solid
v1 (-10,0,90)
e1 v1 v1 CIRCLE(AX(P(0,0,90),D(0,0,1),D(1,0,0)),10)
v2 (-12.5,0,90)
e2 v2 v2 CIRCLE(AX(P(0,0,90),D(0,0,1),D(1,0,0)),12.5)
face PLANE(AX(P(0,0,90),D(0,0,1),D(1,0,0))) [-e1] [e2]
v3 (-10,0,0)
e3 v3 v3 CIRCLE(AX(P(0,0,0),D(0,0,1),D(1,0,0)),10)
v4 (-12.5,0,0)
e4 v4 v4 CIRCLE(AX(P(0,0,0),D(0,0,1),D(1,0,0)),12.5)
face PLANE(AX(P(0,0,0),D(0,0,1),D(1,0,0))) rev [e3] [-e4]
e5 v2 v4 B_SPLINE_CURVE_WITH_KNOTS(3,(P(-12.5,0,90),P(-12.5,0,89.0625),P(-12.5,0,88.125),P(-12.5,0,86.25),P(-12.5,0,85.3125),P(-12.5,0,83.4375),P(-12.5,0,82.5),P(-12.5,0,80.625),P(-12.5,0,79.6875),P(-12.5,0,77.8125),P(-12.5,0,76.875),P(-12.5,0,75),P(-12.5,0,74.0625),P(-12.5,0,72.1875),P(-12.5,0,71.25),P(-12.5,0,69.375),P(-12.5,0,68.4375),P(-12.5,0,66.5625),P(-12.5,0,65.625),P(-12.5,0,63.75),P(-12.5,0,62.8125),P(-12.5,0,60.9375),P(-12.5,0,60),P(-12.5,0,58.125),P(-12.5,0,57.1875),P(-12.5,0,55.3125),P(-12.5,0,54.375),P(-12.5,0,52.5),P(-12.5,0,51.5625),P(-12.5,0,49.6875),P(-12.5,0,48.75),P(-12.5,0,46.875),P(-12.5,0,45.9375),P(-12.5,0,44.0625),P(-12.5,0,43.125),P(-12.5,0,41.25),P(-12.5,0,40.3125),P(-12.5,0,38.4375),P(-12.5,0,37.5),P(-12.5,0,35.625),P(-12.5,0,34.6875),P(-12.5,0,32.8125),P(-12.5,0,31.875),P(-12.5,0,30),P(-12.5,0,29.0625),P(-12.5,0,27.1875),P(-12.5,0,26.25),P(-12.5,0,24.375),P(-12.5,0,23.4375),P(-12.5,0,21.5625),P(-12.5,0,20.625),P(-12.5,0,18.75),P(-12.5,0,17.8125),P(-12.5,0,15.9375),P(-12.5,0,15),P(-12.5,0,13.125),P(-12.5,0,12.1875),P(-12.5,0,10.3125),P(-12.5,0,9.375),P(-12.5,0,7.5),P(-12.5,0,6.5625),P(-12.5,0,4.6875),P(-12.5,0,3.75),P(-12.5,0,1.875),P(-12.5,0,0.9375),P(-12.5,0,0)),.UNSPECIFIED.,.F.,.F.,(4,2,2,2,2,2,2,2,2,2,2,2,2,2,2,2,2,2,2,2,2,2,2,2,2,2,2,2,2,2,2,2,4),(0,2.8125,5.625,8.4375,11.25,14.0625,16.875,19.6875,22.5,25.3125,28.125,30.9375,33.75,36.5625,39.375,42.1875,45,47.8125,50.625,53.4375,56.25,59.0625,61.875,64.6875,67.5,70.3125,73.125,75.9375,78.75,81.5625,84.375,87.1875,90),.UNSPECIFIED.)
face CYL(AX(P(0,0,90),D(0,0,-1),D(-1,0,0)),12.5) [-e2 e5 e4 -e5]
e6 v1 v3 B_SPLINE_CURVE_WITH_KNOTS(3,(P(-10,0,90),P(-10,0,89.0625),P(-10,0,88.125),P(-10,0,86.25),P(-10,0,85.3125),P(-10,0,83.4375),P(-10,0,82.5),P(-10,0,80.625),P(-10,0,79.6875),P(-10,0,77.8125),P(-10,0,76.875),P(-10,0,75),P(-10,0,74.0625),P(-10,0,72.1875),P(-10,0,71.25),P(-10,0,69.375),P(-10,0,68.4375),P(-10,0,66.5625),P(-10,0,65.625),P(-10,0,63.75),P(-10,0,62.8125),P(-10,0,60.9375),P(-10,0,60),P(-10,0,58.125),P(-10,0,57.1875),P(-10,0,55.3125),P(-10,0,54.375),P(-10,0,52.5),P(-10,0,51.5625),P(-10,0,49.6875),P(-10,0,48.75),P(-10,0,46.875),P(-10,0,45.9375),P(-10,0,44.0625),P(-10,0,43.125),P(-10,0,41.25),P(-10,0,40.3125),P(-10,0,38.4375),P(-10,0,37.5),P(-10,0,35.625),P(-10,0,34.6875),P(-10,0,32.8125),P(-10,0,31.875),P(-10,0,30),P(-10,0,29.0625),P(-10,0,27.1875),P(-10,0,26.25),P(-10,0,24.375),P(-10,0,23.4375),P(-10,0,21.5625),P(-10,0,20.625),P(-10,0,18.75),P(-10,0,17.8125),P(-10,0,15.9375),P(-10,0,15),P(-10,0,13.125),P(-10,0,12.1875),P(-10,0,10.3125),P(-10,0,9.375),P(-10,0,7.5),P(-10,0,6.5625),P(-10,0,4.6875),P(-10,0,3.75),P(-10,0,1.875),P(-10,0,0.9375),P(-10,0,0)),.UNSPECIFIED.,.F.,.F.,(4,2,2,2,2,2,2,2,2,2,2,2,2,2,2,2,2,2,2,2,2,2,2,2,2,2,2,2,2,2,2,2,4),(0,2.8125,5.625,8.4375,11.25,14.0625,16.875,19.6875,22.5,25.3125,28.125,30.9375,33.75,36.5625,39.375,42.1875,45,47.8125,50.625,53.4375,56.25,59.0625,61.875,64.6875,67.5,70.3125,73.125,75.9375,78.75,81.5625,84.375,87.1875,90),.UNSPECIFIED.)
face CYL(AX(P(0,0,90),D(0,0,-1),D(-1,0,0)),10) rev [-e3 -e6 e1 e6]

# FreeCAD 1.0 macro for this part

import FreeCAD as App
import Part
import Sketcher
from FreeCAD import Vector
Q = App.Units.Quantity

doc = App.newDocument("Part")
body = doc.addObject("PartDesign::Body", "Body")

# Sketch on XY plane
sketch1 = body.newObject("Sketcher::SketchObject", "Sketch")
sketch1.AttachmentSupport = (doc.getObject("XY_Plane"), [""])
sketch1.MapMode = "FlatFace"
sketch1.addGeometry(Part.Circle(Vector(0, 0, 0), Vector(0, 0, 1), 12), False)
sketch1.addGeometry(Part.Circle(Vector(0, 0, 0), Vector(0, 0, 1), 10), False)
sketch1.addConstraint(Sketcher.Constraint("Coincident", 0, 3, -1, 1))
sketch1.addConstraint(Sketcher.Constraint("Coincident", 1, 3, -1, 1))
sketch1.addConstraint(Sketcher.Constraint("Diameter", 0, Q("25 mm")))
sketch1.addConstraint(Sketcher.Constraint("Diameter", 1, Q("20 mm")))
pad1 = body.newObject("PartDesign::Pad", "Pad")
pad1.Profile = sketch1
pad1.Length = 90

doc.recompute()
